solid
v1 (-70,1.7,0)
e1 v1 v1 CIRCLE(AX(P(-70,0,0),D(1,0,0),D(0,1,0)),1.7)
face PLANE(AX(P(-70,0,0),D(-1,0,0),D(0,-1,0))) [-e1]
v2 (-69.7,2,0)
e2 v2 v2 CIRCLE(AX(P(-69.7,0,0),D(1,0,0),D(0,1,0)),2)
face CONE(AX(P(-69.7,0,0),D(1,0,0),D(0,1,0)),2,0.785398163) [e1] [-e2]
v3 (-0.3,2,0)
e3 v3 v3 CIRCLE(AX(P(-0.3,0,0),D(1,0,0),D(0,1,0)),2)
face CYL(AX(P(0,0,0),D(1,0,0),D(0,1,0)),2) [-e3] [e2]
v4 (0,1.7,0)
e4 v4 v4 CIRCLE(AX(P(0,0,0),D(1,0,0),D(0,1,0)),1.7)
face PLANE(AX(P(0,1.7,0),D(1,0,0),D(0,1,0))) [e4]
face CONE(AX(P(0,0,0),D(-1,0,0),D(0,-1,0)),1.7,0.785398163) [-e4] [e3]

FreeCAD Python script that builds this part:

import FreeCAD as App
import Part
import Sketcher
Q = App.Units.Quantity


def add_polygon(sketch, points):
    """Adds a closed chain of lines whose ends are joined by coincident constraints."""
    first, n = sketch.GeometryCount, len(points)
    for a, b in zip(points, points[1:] + points[:1]):
        sketch.addGeometry(Part.LineSegment(App.Vector(*a, 0), App.Vector(*b, 0)), False)
    for i in range(n):
        sketch.addConstraint(Sketcher.Constraint("Coincident", first + i, 2, first + (i + 1) % n, 1))

doc = App.newDocument("Part")
params = doc.addObject("Spreadsheet::Sheet", "Params")
for row, (alias, value) in enumerate([
    ("sketch1_width", "70 mm"),
    ("sketch1_width2", "69.4 mm"),
    ("sketch1_height", "1.7 mm"),
    ("revolution_angle", "360 deg"),
], start=1):
    params.set(f"A{row}", alias)
    params.set(f"B{row}", "=" + value)
    params.setAlias(f"B{row}", alias)

body = doc.addObject("PartDesign::Body", "Body")

sketch1 = doc.addObject("Sketcher::SketchObject", "Sketch")
body.addObject(sketch1)
sketch1.AttachmentSupport = (doc.XY_Plane, [""])
sketch1.MapMode = "FlatFace"
add_polygon(sketch1, [(-70, 0), (0, 0), (0, 1.7), (-0.3, 2), (-69.7, 2), (-70, 1.7)])
sketch1.addConstraint(Sketcher.Constraint("Horizontal", 0))
sketch1.addConstraint(Sketcher.Constraint("Vertical", 1))
sketch1.addConstraint(Sketcher.Constraint("Horizontal", 3))
sketch1.addConstraint(Sketcher.Constraint("Vertical", 5))
sketch1.addConstraint(Sketcher.Constraint("Coincident", 0, 2, -1, 1))
sketch1.addConstraint(Sketcher.Constraint("Perpendicular", 2, 4))
sketch1.addConstraint(Sketcher.Constraint("Horizontal", 1, 2, 4, 2))
sketch1.addConstraint(Sketcher.Constraint("Equal", 2, 4))
sketch1.addConstraint(Sketcher.Constraint("DistanceX", 0, 1, 0, 2, Q("70 mm")))
sketch1.addConstraint(Sketcher.Constraint("DistanceX", 3, 2, 3, 1, Q("69.4 mm")))
sketch1.addConstraint(Sketcher.Constraint("DistanceY", 1, 1, 1, 2, Q("1.7 mm")))
sketch1.setExpression("Constraints[14]", "Params.sketch1_width")
sketch1.setExpression("Constraints[15]", "Params.sketch1_width2")
sketch1.setExpression("Constraints[16]", "Params.sketch1_height")
revolution = doc.addObject("PartDesign::Revolution", "Revolution")
body.addObject(revolution)
revolution.Profile = sketch1
revolution.ReferenceAxis = (sketch1, ["H_Axis"])
revolution.setExpression("Angle", "Params.revolution_angle")

doc.recompute()
